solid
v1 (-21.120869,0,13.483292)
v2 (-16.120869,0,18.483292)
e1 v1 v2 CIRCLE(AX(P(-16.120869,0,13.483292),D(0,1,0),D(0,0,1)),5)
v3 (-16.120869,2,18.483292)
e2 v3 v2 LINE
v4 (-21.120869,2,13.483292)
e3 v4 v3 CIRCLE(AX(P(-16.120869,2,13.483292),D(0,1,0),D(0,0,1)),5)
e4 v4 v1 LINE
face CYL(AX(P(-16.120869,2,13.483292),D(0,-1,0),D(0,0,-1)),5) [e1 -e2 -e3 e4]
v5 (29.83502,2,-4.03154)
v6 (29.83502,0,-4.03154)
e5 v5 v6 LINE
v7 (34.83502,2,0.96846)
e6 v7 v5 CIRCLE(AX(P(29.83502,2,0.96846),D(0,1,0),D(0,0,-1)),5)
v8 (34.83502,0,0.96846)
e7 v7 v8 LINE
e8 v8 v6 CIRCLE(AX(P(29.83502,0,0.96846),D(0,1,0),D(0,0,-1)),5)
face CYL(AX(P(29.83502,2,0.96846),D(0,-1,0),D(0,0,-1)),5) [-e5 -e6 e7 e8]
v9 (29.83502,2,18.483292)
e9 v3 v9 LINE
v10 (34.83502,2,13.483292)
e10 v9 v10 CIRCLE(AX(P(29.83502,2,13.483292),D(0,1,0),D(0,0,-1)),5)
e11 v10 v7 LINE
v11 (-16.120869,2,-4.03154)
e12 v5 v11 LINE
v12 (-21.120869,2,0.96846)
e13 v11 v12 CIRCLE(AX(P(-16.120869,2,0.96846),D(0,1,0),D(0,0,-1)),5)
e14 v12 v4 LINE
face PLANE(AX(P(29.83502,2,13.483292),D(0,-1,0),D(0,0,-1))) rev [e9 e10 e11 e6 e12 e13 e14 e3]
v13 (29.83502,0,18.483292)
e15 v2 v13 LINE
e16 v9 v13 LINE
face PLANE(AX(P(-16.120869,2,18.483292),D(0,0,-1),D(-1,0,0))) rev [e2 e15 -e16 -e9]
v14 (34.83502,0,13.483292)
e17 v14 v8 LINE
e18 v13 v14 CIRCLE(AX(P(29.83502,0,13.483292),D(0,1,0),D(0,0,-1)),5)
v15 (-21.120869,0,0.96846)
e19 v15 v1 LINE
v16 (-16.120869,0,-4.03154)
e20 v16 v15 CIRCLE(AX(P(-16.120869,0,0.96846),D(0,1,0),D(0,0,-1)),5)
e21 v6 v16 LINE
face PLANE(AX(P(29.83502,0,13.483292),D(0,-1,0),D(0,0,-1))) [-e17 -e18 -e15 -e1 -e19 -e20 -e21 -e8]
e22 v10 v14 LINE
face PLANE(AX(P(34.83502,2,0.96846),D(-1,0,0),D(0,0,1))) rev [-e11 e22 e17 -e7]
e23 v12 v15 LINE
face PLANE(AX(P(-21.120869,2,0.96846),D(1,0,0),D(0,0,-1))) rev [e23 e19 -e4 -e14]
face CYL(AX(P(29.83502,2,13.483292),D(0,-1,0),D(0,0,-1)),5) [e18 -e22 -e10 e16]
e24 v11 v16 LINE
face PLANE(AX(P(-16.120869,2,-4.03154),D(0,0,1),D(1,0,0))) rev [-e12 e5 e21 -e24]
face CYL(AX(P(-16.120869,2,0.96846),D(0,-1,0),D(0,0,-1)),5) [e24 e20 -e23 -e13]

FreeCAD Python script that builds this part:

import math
import FreeCAD as App
import Part
import Sketcher
from FreeCAD import Vector

doc = App.newDocument("Part")
body = doc.addObject("PartDesign::Body", "Body")

sketch1 = doc.addObject("Sketcher::SketchObject", "Sketch")
body.addObject(sketch1)
sketch1.AttachmentSupport = (doc.XZ_Plane, [""])
sketch1.MapMode = "FlatFace"
sketch1.addGeometry(Part.LineSegment(Vector(29.83502, -4.03154, 0), Vector(-16.120869, -4.03154, 0)), False)
sketch1.addGeometry(Part.ArcOfCircle(Part.Circle(Vector(-16.120869, 0.96846, 0), Vector(0, 0, 1), 5), math.radians(180), math.radians(270)), False)
sketch1.addGeometry(Part.LineSegment(Vector(-21.120869, 0.96846, 0), Vector(-21.120869, 13.483292, 0)), False)
sketch1.addGeometry(Part.ArcOfCircle(Part.Circle(Vector(-16.120869, 13.483292, 0), Vector(0, 0, 1), 5), math.radians(90), math.radians(180)), False)
sketch1.addGeometry(Part.LineSegment(Vector(-16.120869, 18.483292, 0), Vector(29.83502, 18.483292, 0)), False)
sketch1.addGeometry(Part.ArcOfCircle(Part.Circle(Vector(29.83502, 13.483292, 0), Vector(0, 0, 1), 5), math.radians(0), math.radians(90)), False)
sketch1.addGeometry(Part.LineSegment(Vector(34.83502, 13.483292, 0), Vector(34.83502, 0.96846, 0)), False)
sketch1.addGeometry(Part.ArcOfCircle(Part.Circle(Vector(29.83502, 0.96846, 0), Vector(0, 0, 1), 5), math.radians(-90), math.radians(0)), False)
sketch1.addConstraint(Sketcher.Constraint("Tangent", 0, 2, 1, 2))
sketch1.addConstraint(Sketcher.Constraint("Tangent", 1, 1, 2, 1))
sketch1.addConstraint(Sketcher.Constraint("Tangent", 2, 2, 3, 2))
sketch1.addConstraint(Sketcher.Constraint("Tangent", 3, 1, 4, 1))
sketch1.addConstraint(Sketcher.Constraint("Tangent", 4, 2, 5, 2))
sketch1.addConstraint(Sketcher.Constraint("Tangent", 5, 1, 6, 1))
sketch1.addConstraint(Sketcher.Constraint("Tangent", 6, 2, 7, 2))
sketch1.addConstraint(Sketcher.Constraint("Tangent", 7, 1, 0, 1))
sketch1.addConstraint(Sketcher.Constraint("Horizontal", 0))
sketch1.addConstraint(Sketcher.Constraint("Vertical", 2))
sketch1.addConstraint(Sketcher.Constraint("Horizontal", 4))
sketch1.addConstraint(Sketcher.Constraint("Vertical", 6))
sketch1.addConstraint(Sketcher.Constraint("Equal", 1, 3))
sketch1.addConstraint(Sketcher.Constraint("Equal", 3, 5))
sketch1.addConstraint(Sketcher.Constraint("Equal", 5, 7))
sketch1.addConstraint(Sketcher.Constraint("Radius", 1, 5.0))
sketch1.addConstraint(Sketcher.Constraint("DistanceX", 0, 2, 0, 1, 45.955889))
sketch1.addConstraint(Sketcher.Constraint("DistanceY", 2, 1, 2, 2, 12.514832))
sketch1.addConstraint(Sketcher.Constraint("DistanceX", 1, 3, -1, 1, 16.120869))
sketch1.addConstraint(Sketcher.Constraint("DistanceY", -1, 1, 1, 3, 0.96846))
pad1 = doc.addObject("PartDesign::Pad", "Pad")
body.addObject(pad1)
pad1.Profile = sketch1
pad1.Length = 2
pad1.Reversed = True

doc.recompute()
